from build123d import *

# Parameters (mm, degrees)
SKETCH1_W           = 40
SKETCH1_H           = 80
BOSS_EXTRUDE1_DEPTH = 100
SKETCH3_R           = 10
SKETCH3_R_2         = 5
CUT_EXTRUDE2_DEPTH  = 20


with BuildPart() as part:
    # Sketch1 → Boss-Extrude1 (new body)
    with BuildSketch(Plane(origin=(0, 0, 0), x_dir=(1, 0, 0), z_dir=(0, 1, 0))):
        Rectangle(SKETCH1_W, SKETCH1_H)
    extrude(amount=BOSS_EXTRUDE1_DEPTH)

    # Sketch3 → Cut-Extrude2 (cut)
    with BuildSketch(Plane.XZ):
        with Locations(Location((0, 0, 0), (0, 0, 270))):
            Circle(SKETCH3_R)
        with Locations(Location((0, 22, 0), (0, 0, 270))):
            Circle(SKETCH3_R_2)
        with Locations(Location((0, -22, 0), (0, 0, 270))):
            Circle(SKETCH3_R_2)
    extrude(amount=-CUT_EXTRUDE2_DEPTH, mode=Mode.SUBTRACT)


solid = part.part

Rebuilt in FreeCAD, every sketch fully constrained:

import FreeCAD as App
import Part
import Sketcher
from FreeCAD import Vector


def add_polygon(sketch, points):
    """Adds a closed chain of lines whose ends are joined by coincident constraints."""
    first, n = sketch.GeometryCount, len(points)
    for a, b in zip(points, points[1:] + points[:1]):
        sketch.addGeometry(Part.LineSegment(App.Vector(*a, 0), App.Vector(*b, 0)), False)
    for i in range(n):
        sketch.addConstraint(Sketcher.Constraint("Coincident", first + i, 2, first + (i + 1) % n, 1))

doc = App.newDocument("Part")
body = doc.addObject("PartDesign::Body", "Body")

# Sketch on XZ plane
sketch1 = body.newObject("Sketcher::SketchObject", "Sketch")
sketch1.AttachmentSupport = (doc.getObject("XZ_Plane"), [""])
sketch1.MapMode = "FlatFace"
add_polygon(sketch1, [(-20, -40), (-20, 40), (20, 40), (20, -40)])  # lines 0-3
sketch1.addConstraint(Sketcher.Constraint("Vertical", 0))
sketch1.addConstraint(Sketcher.Constraint("Horizontal", 1))
sketch1.addConstraint(Sketcher.Constraint("Vertical", 2))
sketch1.addConstraint(Sketcher.Constraint("Horizontal", 3))
sketch1.addConstraint(Sketcher.Constraint("Symmetric", 0, 2, 2, 2, -1, 1))
sketch1.addConstraint(Sketcher.Constraint("DistanceX", 1, 1, 1, 2, 40.0))
sketch1.addConstraint(Sketcher.Constraint("DistanceY", 0, 1, 0, 2, 80.0))
pad1 = body.newObject("PartDesign::Pad", "Pad")
pad1.Profile = sketch1
pad1.Length = 100
pad1.Reversed = True

# Sketch on XZ plane
sketch2 = body.newObject("Sketcher::SketchObject", "Sketch001")
sketch2.AttachmentSupport = (doc.getObject("XZ_Plane"), [""])
sketch2.MapMode = "FlatFace"
sketch2.addGeometry(Part.Circle(Vector(0, 0, 0), Vector(0, 0, 1), 10), False)
sketch2.addGeometry(Part.Circle(Vector(0, 22, 0), Vector(0, 0, 1), 5), False)
sketch2.addGeometry(Part.Circle(Vector(0, -22, 0), Vector(0, 0, 1), 5), False)
sketch2.addConstraint(Sketcher.Constraint("Coincident", 0, 3, -1, 1))
sketch2.addConstraint(Sketcher.Constraint("Equal", 1, 2))
sketch2.addConstraint(Sketcher.Constraint("Symmetric", 1, 3, 2, 3, -1, 1))
sketch2.addConstraint(Sketcher.Constraint("PointOnObject", 1, 3, -2))
sketch2.addConstraint(Sketcher.Constraint("Diameter", 0, 20.0))
sketch2.addConstraint(Sketcher.Constraint("Diameter", 1, 10.0))
sketch2.addConstraint(Sketcher.Constraint("DistanceY", -1, 1, 1, 3, 22.0))
pocket1 = body.newObject("PartDesign::Pocket", "Pocket")
pocket1.Profile = sketch2
pocket1.Length = 20

doc.recompute()
